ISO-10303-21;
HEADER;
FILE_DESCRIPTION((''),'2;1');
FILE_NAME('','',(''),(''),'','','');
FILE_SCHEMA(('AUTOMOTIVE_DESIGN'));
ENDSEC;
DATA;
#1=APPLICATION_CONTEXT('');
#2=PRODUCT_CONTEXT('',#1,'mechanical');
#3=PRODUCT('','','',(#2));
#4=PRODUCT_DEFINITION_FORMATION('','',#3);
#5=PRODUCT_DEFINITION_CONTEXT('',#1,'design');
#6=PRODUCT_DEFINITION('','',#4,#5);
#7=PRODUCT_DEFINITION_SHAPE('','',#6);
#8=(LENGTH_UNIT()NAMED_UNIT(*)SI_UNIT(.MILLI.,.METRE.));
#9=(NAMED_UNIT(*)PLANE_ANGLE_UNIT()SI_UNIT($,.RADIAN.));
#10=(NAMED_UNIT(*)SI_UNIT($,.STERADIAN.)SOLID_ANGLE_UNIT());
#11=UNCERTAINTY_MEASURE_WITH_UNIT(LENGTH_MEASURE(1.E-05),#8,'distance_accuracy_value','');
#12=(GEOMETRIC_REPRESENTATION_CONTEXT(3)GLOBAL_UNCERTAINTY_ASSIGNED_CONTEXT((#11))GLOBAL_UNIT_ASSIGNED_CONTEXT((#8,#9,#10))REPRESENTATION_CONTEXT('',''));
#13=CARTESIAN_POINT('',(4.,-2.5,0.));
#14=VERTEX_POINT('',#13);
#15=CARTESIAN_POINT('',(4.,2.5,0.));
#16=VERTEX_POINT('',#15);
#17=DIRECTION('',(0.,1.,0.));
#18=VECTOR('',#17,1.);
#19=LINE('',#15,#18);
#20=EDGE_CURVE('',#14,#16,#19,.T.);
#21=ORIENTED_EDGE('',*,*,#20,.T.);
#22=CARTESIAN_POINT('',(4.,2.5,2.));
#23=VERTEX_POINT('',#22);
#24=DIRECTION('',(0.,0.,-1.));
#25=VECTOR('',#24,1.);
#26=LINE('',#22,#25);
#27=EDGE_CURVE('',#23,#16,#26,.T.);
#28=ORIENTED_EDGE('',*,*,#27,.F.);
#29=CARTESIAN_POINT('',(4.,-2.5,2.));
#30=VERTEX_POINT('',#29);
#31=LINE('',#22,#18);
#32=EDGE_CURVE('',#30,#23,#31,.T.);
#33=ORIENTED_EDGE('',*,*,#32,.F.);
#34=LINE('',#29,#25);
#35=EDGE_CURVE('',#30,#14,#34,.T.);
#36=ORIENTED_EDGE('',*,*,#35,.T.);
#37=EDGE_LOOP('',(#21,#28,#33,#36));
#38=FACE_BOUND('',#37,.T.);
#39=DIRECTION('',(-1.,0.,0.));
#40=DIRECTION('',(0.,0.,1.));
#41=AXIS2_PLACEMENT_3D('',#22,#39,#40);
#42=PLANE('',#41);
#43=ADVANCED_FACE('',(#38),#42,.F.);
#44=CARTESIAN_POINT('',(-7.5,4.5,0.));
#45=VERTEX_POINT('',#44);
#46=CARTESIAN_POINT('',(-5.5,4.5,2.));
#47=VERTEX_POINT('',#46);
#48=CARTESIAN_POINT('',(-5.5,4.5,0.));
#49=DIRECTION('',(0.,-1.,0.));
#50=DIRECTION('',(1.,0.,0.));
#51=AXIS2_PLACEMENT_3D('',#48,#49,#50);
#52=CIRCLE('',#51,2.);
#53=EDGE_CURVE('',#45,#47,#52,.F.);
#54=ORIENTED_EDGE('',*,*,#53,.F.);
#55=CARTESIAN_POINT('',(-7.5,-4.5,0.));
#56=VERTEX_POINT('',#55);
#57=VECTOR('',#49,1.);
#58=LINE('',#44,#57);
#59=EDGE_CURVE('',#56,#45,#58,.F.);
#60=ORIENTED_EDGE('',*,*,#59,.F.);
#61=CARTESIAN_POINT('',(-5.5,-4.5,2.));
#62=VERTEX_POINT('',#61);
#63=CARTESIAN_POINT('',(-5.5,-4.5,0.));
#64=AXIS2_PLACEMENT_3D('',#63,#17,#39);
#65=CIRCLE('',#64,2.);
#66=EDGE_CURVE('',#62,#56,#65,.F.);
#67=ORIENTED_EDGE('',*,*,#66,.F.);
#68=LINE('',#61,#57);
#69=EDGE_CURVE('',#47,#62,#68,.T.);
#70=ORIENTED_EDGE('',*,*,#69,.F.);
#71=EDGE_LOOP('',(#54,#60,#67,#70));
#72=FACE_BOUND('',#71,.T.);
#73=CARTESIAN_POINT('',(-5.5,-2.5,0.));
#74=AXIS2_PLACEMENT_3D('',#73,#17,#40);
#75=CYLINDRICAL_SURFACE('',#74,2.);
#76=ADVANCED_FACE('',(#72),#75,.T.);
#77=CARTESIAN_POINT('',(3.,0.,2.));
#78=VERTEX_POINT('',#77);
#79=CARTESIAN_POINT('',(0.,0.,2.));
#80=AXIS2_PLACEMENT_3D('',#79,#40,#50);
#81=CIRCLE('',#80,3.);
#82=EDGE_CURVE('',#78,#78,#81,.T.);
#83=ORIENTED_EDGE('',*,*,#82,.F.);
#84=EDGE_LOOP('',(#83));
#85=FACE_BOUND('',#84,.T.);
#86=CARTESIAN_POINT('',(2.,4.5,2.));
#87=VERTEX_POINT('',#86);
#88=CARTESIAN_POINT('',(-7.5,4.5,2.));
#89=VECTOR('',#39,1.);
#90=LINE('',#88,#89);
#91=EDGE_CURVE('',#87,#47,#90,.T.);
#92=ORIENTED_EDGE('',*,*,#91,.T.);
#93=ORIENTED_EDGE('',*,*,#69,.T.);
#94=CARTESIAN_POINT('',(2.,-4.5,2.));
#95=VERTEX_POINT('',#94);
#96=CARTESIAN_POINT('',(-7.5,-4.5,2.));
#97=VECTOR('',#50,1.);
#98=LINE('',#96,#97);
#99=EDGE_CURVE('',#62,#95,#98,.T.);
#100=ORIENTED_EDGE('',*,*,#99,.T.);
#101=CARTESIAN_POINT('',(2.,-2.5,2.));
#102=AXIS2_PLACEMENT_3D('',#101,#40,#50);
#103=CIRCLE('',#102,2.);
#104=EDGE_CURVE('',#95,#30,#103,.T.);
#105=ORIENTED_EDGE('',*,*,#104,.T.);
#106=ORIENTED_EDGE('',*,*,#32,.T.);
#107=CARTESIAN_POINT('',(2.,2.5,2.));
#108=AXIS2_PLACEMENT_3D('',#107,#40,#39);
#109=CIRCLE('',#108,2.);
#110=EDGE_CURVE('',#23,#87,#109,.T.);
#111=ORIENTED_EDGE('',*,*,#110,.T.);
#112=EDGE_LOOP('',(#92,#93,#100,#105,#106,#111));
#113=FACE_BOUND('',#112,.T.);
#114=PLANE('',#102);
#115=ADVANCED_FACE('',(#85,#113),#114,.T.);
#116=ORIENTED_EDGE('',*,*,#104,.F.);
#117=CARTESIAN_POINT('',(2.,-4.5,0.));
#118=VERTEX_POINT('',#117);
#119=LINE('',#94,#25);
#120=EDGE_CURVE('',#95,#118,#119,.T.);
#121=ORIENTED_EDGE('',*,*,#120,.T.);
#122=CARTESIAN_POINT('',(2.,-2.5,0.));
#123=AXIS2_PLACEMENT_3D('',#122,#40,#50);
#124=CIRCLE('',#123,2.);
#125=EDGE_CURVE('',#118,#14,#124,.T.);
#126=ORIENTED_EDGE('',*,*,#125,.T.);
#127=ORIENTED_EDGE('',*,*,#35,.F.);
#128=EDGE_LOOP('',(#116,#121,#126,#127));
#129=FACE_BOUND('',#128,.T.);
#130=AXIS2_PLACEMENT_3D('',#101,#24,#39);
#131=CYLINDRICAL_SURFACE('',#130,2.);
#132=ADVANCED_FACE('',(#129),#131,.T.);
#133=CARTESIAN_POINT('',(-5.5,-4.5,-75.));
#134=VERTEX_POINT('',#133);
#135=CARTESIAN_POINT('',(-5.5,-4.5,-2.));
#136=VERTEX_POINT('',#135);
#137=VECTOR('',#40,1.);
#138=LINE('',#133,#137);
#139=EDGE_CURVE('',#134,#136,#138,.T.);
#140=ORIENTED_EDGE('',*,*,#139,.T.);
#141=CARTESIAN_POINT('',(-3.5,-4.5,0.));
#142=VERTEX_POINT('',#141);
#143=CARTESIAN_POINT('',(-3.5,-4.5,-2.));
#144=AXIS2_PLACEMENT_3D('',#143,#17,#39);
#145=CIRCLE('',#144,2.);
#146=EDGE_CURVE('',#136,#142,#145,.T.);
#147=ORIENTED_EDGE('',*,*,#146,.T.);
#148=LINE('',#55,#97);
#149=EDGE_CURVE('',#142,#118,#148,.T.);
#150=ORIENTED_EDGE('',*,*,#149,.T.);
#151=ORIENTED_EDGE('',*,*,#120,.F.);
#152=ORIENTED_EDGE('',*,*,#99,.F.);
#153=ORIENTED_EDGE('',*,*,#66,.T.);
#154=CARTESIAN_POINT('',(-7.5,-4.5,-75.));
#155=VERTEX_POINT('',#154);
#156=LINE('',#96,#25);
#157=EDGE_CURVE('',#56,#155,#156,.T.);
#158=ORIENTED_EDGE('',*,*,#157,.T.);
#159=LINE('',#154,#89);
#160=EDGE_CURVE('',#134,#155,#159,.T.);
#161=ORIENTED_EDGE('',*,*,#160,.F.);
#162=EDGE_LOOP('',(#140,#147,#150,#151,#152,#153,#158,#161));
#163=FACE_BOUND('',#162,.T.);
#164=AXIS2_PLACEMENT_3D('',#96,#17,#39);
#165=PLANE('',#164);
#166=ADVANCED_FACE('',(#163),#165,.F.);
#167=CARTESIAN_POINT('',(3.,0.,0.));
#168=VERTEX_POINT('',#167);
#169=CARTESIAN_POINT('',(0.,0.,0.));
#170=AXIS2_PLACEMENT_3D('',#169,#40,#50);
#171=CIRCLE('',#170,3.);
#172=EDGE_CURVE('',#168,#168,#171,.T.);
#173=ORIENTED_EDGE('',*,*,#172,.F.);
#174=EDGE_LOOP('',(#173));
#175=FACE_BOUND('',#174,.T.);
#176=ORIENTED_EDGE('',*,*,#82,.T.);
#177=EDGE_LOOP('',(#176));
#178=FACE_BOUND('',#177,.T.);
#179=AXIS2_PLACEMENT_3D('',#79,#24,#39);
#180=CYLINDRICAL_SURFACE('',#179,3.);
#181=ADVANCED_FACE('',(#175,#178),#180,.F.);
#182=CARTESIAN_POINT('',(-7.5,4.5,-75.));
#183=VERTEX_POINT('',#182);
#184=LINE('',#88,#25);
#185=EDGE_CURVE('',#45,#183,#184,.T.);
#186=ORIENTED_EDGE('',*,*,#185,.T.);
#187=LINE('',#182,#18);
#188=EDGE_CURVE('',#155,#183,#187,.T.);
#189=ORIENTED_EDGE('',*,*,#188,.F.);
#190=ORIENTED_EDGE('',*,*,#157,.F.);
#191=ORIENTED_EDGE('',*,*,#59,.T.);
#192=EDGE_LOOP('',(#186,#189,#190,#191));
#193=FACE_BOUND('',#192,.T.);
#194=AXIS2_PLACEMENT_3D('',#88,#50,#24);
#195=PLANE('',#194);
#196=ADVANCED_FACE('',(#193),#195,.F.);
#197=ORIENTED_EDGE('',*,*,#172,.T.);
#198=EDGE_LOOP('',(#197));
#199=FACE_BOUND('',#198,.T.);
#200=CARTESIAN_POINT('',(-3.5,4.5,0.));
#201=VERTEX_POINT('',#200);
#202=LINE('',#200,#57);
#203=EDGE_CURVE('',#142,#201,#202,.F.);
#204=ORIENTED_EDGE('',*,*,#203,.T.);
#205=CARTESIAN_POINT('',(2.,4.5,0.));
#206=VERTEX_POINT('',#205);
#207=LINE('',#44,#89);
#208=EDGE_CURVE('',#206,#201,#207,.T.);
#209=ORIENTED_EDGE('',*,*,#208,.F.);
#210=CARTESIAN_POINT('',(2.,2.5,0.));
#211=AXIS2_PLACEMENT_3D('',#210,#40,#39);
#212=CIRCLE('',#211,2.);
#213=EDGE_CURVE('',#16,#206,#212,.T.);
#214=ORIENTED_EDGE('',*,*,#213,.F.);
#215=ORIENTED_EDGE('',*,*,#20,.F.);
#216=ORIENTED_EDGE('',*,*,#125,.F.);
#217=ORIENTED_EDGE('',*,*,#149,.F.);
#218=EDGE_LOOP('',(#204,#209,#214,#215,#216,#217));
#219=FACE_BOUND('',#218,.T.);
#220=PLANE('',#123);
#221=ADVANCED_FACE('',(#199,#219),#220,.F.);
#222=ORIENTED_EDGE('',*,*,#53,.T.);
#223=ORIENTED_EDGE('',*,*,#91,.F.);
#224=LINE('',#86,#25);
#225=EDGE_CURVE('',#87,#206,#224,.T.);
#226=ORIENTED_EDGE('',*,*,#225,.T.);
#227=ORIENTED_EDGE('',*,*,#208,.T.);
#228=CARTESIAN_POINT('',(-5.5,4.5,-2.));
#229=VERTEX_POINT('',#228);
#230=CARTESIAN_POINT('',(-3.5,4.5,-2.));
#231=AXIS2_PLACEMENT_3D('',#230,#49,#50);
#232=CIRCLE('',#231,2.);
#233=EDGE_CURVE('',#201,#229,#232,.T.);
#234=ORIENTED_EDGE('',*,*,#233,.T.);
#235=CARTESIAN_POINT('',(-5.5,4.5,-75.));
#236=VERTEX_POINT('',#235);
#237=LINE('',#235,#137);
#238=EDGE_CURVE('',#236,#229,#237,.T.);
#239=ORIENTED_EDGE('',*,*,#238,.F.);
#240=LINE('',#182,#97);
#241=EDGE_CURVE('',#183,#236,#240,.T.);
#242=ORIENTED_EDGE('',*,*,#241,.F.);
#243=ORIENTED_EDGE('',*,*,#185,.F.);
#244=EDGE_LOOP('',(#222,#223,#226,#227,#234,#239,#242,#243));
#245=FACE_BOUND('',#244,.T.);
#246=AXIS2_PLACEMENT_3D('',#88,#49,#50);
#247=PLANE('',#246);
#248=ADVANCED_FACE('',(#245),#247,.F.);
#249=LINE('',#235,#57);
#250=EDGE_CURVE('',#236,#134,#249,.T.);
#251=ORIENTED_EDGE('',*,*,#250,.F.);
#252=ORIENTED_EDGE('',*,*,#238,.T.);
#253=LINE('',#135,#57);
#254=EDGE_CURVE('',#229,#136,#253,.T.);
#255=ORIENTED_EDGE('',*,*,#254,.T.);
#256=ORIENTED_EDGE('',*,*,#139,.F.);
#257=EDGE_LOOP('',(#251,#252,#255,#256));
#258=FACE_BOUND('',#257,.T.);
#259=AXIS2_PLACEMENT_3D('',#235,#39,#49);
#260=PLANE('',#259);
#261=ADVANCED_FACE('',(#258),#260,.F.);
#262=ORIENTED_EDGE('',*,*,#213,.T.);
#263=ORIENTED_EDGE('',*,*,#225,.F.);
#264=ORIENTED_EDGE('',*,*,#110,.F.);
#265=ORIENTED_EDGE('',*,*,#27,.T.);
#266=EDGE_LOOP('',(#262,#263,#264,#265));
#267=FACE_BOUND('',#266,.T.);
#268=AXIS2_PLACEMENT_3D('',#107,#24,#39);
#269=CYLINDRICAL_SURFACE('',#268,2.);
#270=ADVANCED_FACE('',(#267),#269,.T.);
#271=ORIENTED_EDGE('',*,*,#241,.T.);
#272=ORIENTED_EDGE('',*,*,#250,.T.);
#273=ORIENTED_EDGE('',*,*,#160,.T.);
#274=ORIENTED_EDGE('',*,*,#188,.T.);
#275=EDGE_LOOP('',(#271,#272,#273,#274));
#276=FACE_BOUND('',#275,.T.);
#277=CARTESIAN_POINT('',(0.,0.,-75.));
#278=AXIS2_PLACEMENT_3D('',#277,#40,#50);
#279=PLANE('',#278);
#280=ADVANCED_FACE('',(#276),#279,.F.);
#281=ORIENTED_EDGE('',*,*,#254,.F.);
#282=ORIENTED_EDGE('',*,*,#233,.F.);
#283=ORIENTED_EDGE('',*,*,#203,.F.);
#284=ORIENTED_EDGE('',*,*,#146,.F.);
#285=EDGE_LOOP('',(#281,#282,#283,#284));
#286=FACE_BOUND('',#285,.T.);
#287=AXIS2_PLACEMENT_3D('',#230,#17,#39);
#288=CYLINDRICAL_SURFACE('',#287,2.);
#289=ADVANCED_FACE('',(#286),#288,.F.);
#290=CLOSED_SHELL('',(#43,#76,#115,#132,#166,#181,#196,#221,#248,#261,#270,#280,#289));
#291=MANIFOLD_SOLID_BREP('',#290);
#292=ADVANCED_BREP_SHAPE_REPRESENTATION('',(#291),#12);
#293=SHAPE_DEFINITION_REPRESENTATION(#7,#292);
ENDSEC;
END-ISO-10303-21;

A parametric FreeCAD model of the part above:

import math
import FreeCAD as App
import Part
import Sketcher
from FreeCAD import Vector


def edges_at(feature, points):
    """Names of the edges that pass closest to the given points."""
    edges = feature.Shape.Edges
    near = lambda p: min(range(len(edges)), key=lambda i: edges[i].distToShape(Part.Vertex(*p))[0])
    return sorted({f"Edge{near(p) + 1}" for p in points})


def add_polygon(sketch, points):
    """Adds a closed chain of lines whose ends are joined by coincident constraints."""
    first, n = sketch.GeometryCount, len(points)
    for a, b in zip(points, points[1:] + points[:1]):
        sketch.addGeometry(Part.LineSegment(App.Vector(*a, 0), App.Vector(*b, 0)), False)
    for i in range(n):
        sketch.addConstraint(Sketcher.Constraint("Coincident", first + i, 2, first + (i + 1) % n, 1))

doc = App.newDocument("Part")
body = doc.addObject("PartDesign::Body", "Body")

# Sketch on XY plane
sketch1 = body.newObject("Sketcher::SketchObject", "Sketch")
sketch1.AttachmentSupport = (doc.getObject("XY_Plane"), [""])
sketch1.MapMode = "FlatFace"
sketch1.addGeometry([
    Part.LineSegment(Vector(2, 4.5, 0), Vector(-7.5, 4.5, 0)),  # 0
    Part.LineSegment(Vector(-7.5, 4.5, 0), Vector(-7.5, -4.5, 0)),  # 1
    Part.LineSegment(Vector(-7.5, -4.5, 0), Vector(2, -4.5, 0)),  # 2
    Part.ArcOfCircle(Part.Circle(Vector(2, -2.5, 0), Vector(0, 0, 1), 2), math.radians(-90), math.radians(0)),  # 3
    Part.LineSegment(Vector(4, -2.5, 0), Vector(4, 2.5, 0)),  # 4
    Part.ArcOfCircle(Part.Circle(Vector(2, 2.5, 0), Vector(0, 0, 1), 2), math.radians(0), math.radians(90)),  # 5
    Part.Circle(Vector(0, 0, 0), Vector(0, 0, 1), 3),  # 6
], False)
sketch1.addConstraint([
    Sketcher.Constraint("Coincident", 0, 2, 1, 1),
    Sketcher.Constraint("Coincident", 1, 2, 2, 1),
    Sketcher.Constraint("Tangent", 2, 2, 3, 1),
    Sketcher.Constraint("Tangent", 3, 2, 4, 1),
    Sketcher.Constraint("Tangent", 4, 2, 5, 1),
    Sketcher.Constraint("Tangent", 5, 2, 0, 1),
    Sketcher.Constraint("Horizontal", 0),
    Sketcher.Constraint("Vertical", 1),
    Sketcher.Constraint("Horizontal", 2),
    Sketcher.Constraint("Vertical", 4),
    Sketcher.Constraint("Coincident", 6, 3, -1, 1),
    Sketcher.Constraint("Equal", 3, 5),
    Sketcher.Constraint("Diameter", 6, 6.0),
    Sketcher.Constraint("Radius", 3, 2.0),
    Sketcher.Constraint("DistanceY", 1, 2, 1, 1, 9.0),
    Sketcher.Constraint("DistanceX", 0, 2, 0, 1, 9.5),
    Sketcher.Constraint("DistanceX", -1, 1, 3, 3, 2.0),
    Sketcher.Constraint("DistanceY", 3, 3, -1, 1, 2.5),
])
pad1 = body.newObject("PartDesign::Pad", "Pad")
pad1.Profile = sketch1
pad1.Length = 2

# Sketch on XY plane
sketch2 = body.newObject("Sketcher::SketchObject", "Sketch001")
sketch2.AttachmentSupport = (doc.getObject("XY_Plane"), [""])
sketch2.MapMode = "FlatFace"
add_polygon(sketch2, [(-5.5, 4.5), (-5.5, -4.5), (-7.5, -4.5), (-7.5, 4.5)])  # lines 0-3
sketch2.addConstraint([
    Sketcher.Constraint("Vertical", 0),
    Sketcher.Constraint("Horizontal", 1),
    Sketcher.Constraint("Vertical", 2),
    Sketcher.Constraint("Horizontal", 3),
    Sketcher.Constraint("DistanceX", 1, 2, 1, 1, 2.0),
    Sketcher.Constraint("DistanceY", 0, 2, 0, 1, 9.0),
    Sketcher.Constraint("DistanceX", 0, 2, -1, 1, 5.5),
    Sketcher.Constraint("DistanceY", 0, 2, -1, 1, 4.5),
])
pad2 = body.newObject("PartDesign::Pad", "Pad001")
pad2.Profile = sketch2
pad2.Length = 75
pad2.Reversed = True
doc.recompute()

fillet = body.newObject("PartDesign::Fillet", "Fillet")
fillet.Base = (pad2, edges_at(pad2, [(-5.5, 0, 0), (-7.5, 0, 2)]))
fillet.Radius = 2

doc.recompute()
